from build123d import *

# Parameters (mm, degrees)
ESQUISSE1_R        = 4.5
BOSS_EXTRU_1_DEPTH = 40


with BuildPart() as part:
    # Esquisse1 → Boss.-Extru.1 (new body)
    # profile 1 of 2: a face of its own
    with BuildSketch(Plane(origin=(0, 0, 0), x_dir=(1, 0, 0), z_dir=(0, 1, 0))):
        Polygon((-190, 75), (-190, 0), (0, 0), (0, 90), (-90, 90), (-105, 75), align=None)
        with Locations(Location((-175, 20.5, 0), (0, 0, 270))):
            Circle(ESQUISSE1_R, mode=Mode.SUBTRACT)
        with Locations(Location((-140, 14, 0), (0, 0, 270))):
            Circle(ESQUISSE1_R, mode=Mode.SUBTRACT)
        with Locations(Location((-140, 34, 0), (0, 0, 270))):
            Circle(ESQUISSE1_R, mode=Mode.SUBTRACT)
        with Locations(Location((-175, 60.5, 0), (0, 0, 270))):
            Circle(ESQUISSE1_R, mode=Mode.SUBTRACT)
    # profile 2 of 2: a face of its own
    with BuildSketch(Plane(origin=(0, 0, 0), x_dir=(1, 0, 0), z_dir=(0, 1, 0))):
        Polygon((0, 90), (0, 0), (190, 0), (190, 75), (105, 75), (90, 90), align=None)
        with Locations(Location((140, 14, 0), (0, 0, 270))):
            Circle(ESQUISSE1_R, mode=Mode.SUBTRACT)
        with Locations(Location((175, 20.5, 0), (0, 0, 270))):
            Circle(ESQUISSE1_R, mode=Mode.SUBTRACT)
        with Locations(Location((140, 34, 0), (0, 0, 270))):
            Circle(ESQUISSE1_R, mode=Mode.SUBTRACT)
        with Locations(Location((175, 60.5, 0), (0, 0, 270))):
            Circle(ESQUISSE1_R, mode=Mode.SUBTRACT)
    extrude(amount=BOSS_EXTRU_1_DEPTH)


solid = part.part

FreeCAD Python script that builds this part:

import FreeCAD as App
import Part
import Sketcher
Q = App.Units.Quantity


def add_polygon(sketch, points):
    """Adds a closed chain of lines whose ends are joined by coincident constraints."""
    first, n = sketch.GeometryCount, len(points)
    for a, b in zip(points, points[1:] + points[:1]):
        sketch.addGeometry(Part.LineSegment(App.Vector(*a, 0), App.Vector(*b, 0)), False)
    for i in range(n):
        sketch.addConstraint(Sketcher.Constraint("Coincident", first + i, 2, first + (i + 1) % n, 1))

doc = App.newDocument("Part")
params = doc.addObject("Spreadsheet::Sheet", "Params")
for row, (alias, value) in enumerate([
    ("sketch1_diameter", "9 mm"),
    ("sketch1_width", "380 mm"),
    ("sketch1_width2", "85 mm"),
    ("sketch1_width3", "180 mm"),
    ("sketch1_height", "75 mm"),
    ("pad1_length", "40 mm"),
], start=1):
    params.set(f"A{row}", alias)
    params.set(f"B{row}", "=" + value)
    params.setAlias(f"B{row}", alias)

body = doc.addObject("PartDesign::Body", "Body")

# Sketch on XZ plane
sketch1 = doc.addObject("Sketcher::SketchObject", "Sketch")
body.addObject(sketch1)
sketch1.AttachmentSupport = (doc.XZ_Plane, [""])
sketch1.MapMode = "FlatFace"
add_polygon(sketch1, [(-190, -75), (-190, 0), (190, 0), (190, -75), (105, -75), (90, -90), (-90, -90), (-105, -75)])  # lines 0-7
sketch1.addGeometry(Part.Circle(App.Vector(-175, -20.5, 0), App.Vector(0, 0, 1), 4.5), False)  # 8
sketch1.addGeometry(Part.Circle(App.Vector(-140, -14, 0), App.Vector(0, 0, 1), 4.5), False)  # 9
sketch1.addGeometry(Part.Circle(App.Vector(-140, -34, 0), App.Vector(0, 0, 1), 4.5), False)  # 10
sketch1.addGeometry(Part.Circle(App.Vector(-175, -60.5, 0), App.Vector(0, 0, 1), 4.5), False)  # 11
sketch1.addGeometry(Part.Circle(App.Vector(175, -60.5, 0), App.Vector(0, 0, 1), 4.5), False)  # 12
sketch1.addGeometry(Part.Circle(App.Vector(140, -14, 0), App.Vector(0, 0, 1), 4.5), False)  # 13
sketch1.addGeometry(Part.Circle(App.Vector(140, -34, 0), App.Vector(0, 0, 1), 4.5), False)  # 14
sketch1.addGeometry(Part.Circle(App.Vector(175, -20.5, 0), App.Vector(0, 0, 1), 4.5), False)  # 15
sketch1.addConstraint(Sketcher.Constraint("Vertical", 0))
sketch1.addConstraint(Sketcher.Constraint("Horizontal", 1))
sketch1.addConstraint(Sketcher.Constraint("Vertical", 2))
sketch1.addConstraint(Sketcher.Constraint("Horizontal", 3))
sketch1.addConstraint(Sketcher.Constraint("Horizontal", 5))
sketch1.addConstraint(Sketcher.Constraint("Horizontal", 7))
sketch1.addConstraint(Sketcher.Constraint("Equal", 8, 9))
sketch1.addConstraint(Sketcher.Constraint("Equal", 9, 10))
sketch1.addConstraint(Sketcher.Constraint("Equal", 10, 11))
sketch1.addConstraint(Sketcher.Constraint("Equal", 11, 12))
sketch1.addConstraint(Sketcher.Constraint("Equal", 12, 13))
sketch1.addConstraint(Sketcher.Constraint("Equal", 13, 14))
sketch1.addConstraint(Sketcher.Constraint("Equal", 14, 15))
sketch1.addConstraint(Sketcher.Constraint("Symmetric", 0, 2, 1, 2, -1, 1))
sketch1.addConstraint(Sketcher.Constraint("Symmetric", 11, 3, 12, 3, -2))
sketch1.addConstraint(Sketcher.Constraint("Symmetric", 9, 3, 13, 3, -2))
sketch1.addConstraint(Sketcher.Constraint("Symmetric", 10, 3, 14, 3, -2))
sketch1.addConstraint(Sketcher.Constraint("Symmetric", 8, 3, 15, 3, -2))
sketch1.addConstraint(Sketcher.Constraint("Symmetric", 3, 2, 6, 2, -2))
sketch1.addConstraint(Sketcher.Constraint("Perpendicular", 4, 6))
sketch1.addConstraint(Sketcher.Constraint("Vertical", 9, 3, 10, 3))
sketch1.addConstraint(Sketcher.Constraint("Vertical", 8, 3, 11, 3))
sketch1.addConstraint(Sketcher.Constraint("Equal", 4, 6))
sketch1.addConstraint(Sketcher.Constraint("Diameter", 8, Q("9 mm")))
sketch1.addConstraint(Sketcher.Constraint("DistanceX", 1, 1, 1, 2, Q("380 mm")))
sketch1.addConstraint(Sketcher.Constraint("DistanceX", 3, 2, 3, 1, Q("85 mm")))
sketch1.addConstraint(Sketcher.Constraint("DistanceX", 5, 2, 5, 1, Q("180 mm")))
sketch1.addConstraint(Sketcher.Constraint("DistanceY", 0, 1, 0, 2, Q("75 mm")))
sketch1.addConstraint(Sketcher.Constraint("DistanceX", 8, 3, -1, 1, Q("175 mm")))
sketch1.addConstraint(Sketcher.Constraint("DistanceX", 9, 3, -1, 1, Q("140 mm")))
sketch1.addConstraint(Sketcher.Constraint("DistanceY", 9, 3, -1, 1, Q("14 mm")))
sketch1.addConstraint(Sketcher.Constraint("DistanceY", 10, 3, -1, 1, Q("34 mm")))
sketch1.addConstraint(Sketcher.Constraint("DistanceY", 11, 3, 8, 3, Q("40 mm")))
sketch1.addConstraint(Sketcher.Constraint("DistanceY", 8, 3, -1, 1, Q("20.5 mm")))
sketch1.setExpression("Constraints[31]", "Params.sketch1_diameter")
sketch1.setExpression("Constraints[32]", "Params.sketch1_width")
sketch1.setExpression("Constraints[33]", "Params.sketch1_width2")
sketch1.setExpression("Constraints[34]", "Params.sketch1_width3")
sketch1.setExpression("Constraints[35]", "Params.sketch1_height")
pad1 = doc.addObject("PartDesign::Pad", "Pad")
body.addObject(pad1)
pad1.Profile = sketch1
pad1.setExpression("Length", "Params.pad1_length")
pad1.Reversed = True

doc.recompute()
